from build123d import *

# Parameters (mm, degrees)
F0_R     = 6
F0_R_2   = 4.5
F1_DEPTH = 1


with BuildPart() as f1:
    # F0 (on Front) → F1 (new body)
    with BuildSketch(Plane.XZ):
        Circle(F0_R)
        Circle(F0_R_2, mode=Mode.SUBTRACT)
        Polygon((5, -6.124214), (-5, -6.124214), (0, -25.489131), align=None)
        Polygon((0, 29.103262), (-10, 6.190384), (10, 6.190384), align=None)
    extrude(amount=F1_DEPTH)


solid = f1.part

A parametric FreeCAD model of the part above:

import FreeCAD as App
import Part
import Sketcher
from FreeCAD import Vector


def add_polygon(sketch, points):
    """Adds a closed chain of lines whose ends are joined by coincident constraints."""
    first, n = sketch.GeometryCount, len(points)
    for a, b in zip(points, points[1:] + points[:1]):
        sketch.addGeometry(Part.LineSegment(App.Vector(*a, 0), App.Vector(*b, 0)), False)
    for i in range(n):
        sketch.addConstraint(Sketcher.Constraint("Coincident", first + i, 2, first + (i + 1) % n, 1))

doc = App.newDocument("Part")
params = doc.addObject("Spreadsheet::Sheet", "Params")
for row, (alias, value) in enumerate([
    ("sketch1_diameter", "12 mm"),
    ("sketch1_diameter2", "9 mm"),
    ("sketch1_width", "10 mm"),
    ("sketch1_width2", "20 mm"),
    ("sketch1_length", "20 mm"),
    ("pad1_length", "1 mm"),
], start=1):
    params.set(f"A{row}", alias)
    params.set(f"B{row}", "=" + value)
    params.setAlias(f"B{row}", alias)

body = doc.addObject("PartDesign::Body", "Body")
body.AllowCompound = True

# Sketch on XZ plane
sketch1 = doc.addObject("Sketcher::SketchObject", "Sketch")
body.addObject(sketch1)
sketch1.AttachmentSupport = (doc.XZ_Plane, [""])
sketch1.MapMode = "FlatFace"
sketch1.addGeometry(Part.Circle(Vector(0, 0, 0), Vector(0, 0, 1), 6), False)  # 0
sketch1.addGeometry(Part.Circle(Vector(0, 0, 0), Vector(0, 0, 1), 4.5), False)  # 1
add_polygon(sketch1, [(5, -6.1), (-5, -6.1), (0, -25.5)])  # lines 2-4
add_polygon(sketch1, [(0, 29.1), (-10, 6.2), (10, 6.2)])  # lines 5-7
sketch1.addConstraint([
    Sketcher.Constraint("Horizontal", 2),
    Sketcher.Constraint("Horizontal", 6),
    Sketcher.Constraint("Coincident", 0, 3, -1, 1),
    Sketcher.Constraint("Coincident", 1, 3, -1, 1),
    Sketcher.Constraint("PointOnObject", 3, 2, -2),
    Sketcher.Constraint("PointOnObject", 7, 2, -2),
    Sketcher.Constraint("Equal", 3, 4),
    Sketcher.Constraint("Equal", 5, 7),
    Sketcher.Constraint("Diameter", 0, 12.0),
    Sketcher.Constraint("Diameter", 1, 9.0),
    Sketcher.Constraint("DistanceX", 2, 2, 2, 1, 10.0),
    Sketcher.Constraint("DistanceX", 6, 1, 6, 2, 20.0),
    Sketcher.Constraint("Distance", 3, 20.0),
    Sketcher.Constraint("Distance", 5, 25.0),
    Sketcher.Constraint("DistanceY", 3, 2, -1, 1, 25.489131),
    Sketcher.Constraint("DistanceY", -1, 1, 5, 2, 6.190384),
])
sketch1.setExpression("Constraints[14]", "Params.sketch1_diameter")
sketch1.setExpression("Constraints[15]", "Params.sketch1_diameter2")
sketch1.setExpression("Constraints[16]", "Params.sketch1_width")
sketch1.setExpression("Constraints[17]", "Params.sketch1_width2")
sketch1.setExpression("Constraints[18]", "Params.sketch1_length")
pad1 = doc.addObject("PartDesign::Pad", "Pad")
body.addObject(pad1)
pad1.Profile = sketch1
pad1.setExpression("Length", "Params.pad1_length")

doc.recompute()
